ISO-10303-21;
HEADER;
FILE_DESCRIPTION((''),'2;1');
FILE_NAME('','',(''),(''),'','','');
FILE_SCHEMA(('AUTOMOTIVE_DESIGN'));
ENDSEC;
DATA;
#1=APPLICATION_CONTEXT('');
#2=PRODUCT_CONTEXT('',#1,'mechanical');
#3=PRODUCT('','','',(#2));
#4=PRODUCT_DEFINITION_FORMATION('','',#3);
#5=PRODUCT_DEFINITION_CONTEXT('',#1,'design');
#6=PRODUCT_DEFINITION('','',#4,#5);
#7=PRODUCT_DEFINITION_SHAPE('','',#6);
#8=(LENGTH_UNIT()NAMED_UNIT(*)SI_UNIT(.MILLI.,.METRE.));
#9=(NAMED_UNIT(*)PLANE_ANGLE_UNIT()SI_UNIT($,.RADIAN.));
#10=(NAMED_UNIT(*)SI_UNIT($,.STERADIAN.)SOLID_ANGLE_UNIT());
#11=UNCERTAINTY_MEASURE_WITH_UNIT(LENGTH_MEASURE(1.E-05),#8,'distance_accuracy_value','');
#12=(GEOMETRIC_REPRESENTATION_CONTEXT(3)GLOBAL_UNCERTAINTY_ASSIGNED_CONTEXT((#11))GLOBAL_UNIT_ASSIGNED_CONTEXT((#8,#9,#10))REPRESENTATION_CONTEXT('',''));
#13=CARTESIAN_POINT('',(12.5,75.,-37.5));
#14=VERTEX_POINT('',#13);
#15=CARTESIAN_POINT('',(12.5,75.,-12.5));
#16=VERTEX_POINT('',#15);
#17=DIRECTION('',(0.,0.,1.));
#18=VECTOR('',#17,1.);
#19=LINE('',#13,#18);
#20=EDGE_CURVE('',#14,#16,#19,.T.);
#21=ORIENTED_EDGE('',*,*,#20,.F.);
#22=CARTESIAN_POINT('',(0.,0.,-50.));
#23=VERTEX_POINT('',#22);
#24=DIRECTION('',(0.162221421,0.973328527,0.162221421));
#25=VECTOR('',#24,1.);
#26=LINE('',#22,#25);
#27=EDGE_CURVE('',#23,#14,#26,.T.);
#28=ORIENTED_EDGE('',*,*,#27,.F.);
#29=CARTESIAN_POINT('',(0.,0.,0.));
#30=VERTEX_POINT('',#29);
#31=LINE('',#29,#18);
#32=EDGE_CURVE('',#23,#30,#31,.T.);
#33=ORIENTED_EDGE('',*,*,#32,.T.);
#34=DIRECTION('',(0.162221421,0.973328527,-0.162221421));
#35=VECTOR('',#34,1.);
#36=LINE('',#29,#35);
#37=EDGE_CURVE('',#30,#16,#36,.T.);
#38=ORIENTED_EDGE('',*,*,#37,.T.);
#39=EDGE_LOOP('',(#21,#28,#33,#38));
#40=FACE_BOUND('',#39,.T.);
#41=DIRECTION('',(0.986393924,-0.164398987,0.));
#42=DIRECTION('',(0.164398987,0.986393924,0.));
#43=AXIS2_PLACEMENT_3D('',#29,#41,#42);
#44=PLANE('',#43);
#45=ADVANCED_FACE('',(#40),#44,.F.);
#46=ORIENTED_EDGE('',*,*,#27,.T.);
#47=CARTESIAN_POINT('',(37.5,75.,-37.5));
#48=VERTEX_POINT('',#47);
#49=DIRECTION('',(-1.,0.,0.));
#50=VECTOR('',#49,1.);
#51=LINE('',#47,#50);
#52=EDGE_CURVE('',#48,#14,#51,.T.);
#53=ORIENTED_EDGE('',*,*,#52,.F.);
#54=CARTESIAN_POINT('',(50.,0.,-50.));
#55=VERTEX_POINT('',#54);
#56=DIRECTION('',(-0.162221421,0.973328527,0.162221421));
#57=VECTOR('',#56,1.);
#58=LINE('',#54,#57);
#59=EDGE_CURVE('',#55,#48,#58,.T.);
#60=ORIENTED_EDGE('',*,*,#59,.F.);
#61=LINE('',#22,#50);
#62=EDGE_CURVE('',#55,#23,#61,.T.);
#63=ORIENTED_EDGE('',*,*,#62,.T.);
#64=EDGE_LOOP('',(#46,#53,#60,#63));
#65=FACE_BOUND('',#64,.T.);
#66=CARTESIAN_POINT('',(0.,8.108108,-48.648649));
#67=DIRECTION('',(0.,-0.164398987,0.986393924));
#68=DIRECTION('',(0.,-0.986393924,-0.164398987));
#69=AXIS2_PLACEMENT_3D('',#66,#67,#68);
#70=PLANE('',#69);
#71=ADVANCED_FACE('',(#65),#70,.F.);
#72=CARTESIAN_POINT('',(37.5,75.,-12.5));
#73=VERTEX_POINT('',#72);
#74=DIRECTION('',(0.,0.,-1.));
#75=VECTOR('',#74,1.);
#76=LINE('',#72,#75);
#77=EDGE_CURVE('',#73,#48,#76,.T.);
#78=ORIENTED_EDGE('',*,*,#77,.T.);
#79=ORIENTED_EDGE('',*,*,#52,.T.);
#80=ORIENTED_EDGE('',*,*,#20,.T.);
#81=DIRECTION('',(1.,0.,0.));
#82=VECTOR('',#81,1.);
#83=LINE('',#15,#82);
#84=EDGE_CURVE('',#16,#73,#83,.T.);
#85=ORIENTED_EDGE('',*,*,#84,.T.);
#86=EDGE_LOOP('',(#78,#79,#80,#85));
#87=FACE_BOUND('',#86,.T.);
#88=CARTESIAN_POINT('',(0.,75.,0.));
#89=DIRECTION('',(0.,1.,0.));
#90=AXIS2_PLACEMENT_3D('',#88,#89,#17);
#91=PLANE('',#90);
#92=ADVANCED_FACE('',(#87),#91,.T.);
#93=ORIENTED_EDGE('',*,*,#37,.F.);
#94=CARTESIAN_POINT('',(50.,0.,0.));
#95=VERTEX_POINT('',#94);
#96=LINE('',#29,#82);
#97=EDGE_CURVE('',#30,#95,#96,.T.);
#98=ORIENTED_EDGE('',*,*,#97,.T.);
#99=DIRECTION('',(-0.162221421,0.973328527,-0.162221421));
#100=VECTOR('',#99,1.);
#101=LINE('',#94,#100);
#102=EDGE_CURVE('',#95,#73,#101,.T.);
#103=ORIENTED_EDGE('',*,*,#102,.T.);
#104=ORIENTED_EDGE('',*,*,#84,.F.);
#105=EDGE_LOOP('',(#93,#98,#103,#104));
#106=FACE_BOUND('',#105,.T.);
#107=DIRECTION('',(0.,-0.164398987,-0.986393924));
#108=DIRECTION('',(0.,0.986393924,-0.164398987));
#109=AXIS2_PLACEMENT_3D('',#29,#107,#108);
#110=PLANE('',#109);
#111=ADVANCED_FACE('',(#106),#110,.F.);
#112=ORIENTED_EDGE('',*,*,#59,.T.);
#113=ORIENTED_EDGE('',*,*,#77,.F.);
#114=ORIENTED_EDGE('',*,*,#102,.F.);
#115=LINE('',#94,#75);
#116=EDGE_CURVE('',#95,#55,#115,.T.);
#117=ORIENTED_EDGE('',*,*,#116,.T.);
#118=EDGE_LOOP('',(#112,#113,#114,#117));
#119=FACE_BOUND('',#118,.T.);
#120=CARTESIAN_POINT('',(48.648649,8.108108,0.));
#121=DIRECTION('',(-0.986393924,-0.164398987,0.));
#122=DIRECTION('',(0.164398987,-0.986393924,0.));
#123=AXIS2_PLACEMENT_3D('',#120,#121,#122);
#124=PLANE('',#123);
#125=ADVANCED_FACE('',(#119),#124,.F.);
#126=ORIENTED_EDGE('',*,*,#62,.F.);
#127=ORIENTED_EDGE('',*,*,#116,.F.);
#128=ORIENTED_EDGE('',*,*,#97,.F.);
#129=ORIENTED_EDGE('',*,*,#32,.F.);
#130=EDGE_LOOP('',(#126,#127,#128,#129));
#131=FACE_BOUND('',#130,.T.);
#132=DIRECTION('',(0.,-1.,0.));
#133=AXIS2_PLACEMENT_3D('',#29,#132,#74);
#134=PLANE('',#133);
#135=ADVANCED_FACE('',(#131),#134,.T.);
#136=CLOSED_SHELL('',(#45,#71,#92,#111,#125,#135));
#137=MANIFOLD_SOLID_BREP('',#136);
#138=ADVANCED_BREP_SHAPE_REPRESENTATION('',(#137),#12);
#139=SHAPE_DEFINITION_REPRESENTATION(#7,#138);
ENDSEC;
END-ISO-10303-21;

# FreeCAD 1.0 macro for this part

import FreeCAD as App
import Part
import Sketcher
from FreeCAD import Vector
Q = App.Units.Quantity


def add_polygon(sketch, points):
    """Adds a closed chain of lines whose ends are joined by coincident constraints."""
    first, n = sketch.GeometryCount, len(points)
    for a, b in zip(points, points[1:] + points[:1]):
        sketch.addGeometry(Part.LineSegment(App.Vector(*a, 0), App.Vector(*b, 0)), False)
    for i in range(n):
        sketch.addConstraint(Sketcher.Constraint("Coincident", first + i, 2, first + (i + 1) % n, 1))

doc = App.newDocument("Part")
body = doc.addObject("PartDesign::Body", "Body")

sketch1 = body.newObject("Sketcher::SketchObject", "Sketch")
sketch1.AttachmentSupport = (doc.getObject("XZ_Plane"), [""])
sketch1.MapMode = "FlatFace"
add_polygon(sketch1, [(0, 0), (50, 0), (50, -50), (0, -50)])
sketch1.addConstraint([
    Sketcher.Constraint("Horizontal", 0),
    Sketcher.Constraint("Vertical", 1),
    Sketcher.Constraint("Horizontal", 2),
    Sketcher.Constraint("Vertical", 3),
    Sketcher.Constraint("Coincident", 3, 2, -1, 1),
    Sketcher.Constraint("Equal", 2, 1),
    Sketcher.Constraint("DistanceX", 0, 1, 0, 2, Q("50 mm")),
])

sketch2 = body.newObject("Sketcher::SketchObject", "Sketch001")
sketch2.AttachmentSupport = (doc.getObject("XZ_Plane"), [""])
sketch2.MapMode = "FlatFace"
sketch2.AttachmentOffset = App.Placement(Vector(0, 0, -75), App.Rotation())
add_polygon(sketch2, [(38, -38), (12, -38), (12, -12), (38, -12)])
sketch2.addConstraint([
    Sketcher.Constraint("Horizontal", 0),
    Sketcher.Constraint("Vertical", 1),
    Sketcher.Constraint("Horizontal", 2),
    Sketcher.Constraint("Vertical", 3),
    Sketcher.Constraint("Equal", 2, 1),
    Sketcher.Constraint("DistanceX", 0, 2, 0, 1, Q("25 mm")),
    Sketcher.Constraint("DistanceX", -1, 1, 0, 2, Q("12.5 mm")),
    Sketcher.Constraint("DistanceY", 0, 2, -1, 1, Q("37.5 mm")),
])

additiveloft = body.newObject("PartDesign::AdditiveLoft", "AdditiveLoft")
additiveloft.Profile = sketch1
additiveloft.Sections = [sketch2]

doc.recompute()
